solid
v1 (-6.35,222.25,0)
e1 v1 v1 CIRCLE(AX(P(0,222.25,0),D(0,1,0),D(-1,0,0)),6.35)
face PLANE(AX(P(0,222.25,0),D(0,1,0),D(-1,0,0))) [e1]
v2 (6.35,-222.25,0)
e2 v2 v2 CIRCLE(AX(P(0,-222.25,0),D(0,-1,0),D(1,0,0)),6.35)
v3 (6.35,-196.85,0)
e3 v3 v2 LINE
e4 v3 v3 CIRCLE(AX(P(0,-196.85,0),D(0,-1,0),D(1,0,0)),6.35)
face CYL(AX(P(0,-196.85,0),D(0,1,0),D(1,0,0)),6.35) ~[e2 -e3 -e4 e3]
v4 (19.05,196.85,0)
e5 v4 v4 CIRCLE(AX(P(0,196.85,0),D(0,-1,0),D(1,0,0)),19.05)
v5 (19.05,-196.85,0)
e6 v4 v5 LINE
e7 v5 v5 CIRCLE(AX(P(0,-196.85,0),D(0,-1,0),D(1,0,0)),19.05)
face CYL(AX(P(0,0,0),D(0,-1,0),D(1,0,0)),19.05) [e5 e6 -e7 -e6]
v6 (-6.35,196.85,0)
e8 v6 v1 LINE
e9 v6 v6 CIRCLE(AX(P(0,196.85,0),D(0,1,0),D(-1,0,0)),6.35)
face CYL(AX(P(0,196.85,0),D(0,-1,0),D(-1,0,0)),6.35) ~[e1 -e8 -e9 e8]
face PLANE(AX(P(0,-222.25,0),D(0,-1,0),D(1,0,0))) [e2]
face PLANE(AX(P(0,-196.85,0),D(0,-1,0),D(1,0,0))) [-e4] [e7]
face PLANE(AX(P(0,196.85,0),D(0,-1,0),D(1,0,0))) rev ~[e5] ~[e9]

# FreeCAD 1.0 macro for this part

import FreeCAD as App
import Part
import Sketcher

V = App.Vector
Q = App.Units.Quantity

doc = App.newDocument("Part")
params = doc.addObject("Spreadsheet::Sheet", "Params")
for row, (alias, value) in enumerate([
    ("sketch1_diameter", "1.5 in"),
    ("pad1_length", "15.5 in"),
    ("sketch2_diameter", "0.5 in"),
    ("pad2_length", "1 in"),
    ("sketch3_diameter", "0.5 in"),
    ("pad3_length", "1 in"),
], start=1):
    params.set(f"A{row}", alias)
    params.set(f"B{row}", "=" + value)
    params.setAlias(f"B{row}", alias)

body = doc.addObject("PartDesign::Body", "Body")

# Sketch on XZ plane
sketch1 = doc.addObject("Sketcher::SketchObject", "Sketch")
body.addObject(sketch1)
sketch1.AttachmentSupport = (doc.XZ_Plane, [""])
sketch1.MapMode = "FlatFace"
sketch1.addGeometry(Part.Circle(V(0, 0, 0), V(0, 0, 1), 19), False)
sketch1.addConstraint([
    Sketcher.Constraint("Coincident", 0, 3, -1, 1),
    Sketcher.Constraint("Diameter", 0, Q("1.5 in")),
])
sketch1.setExpression("Constraints[1]", "Params.sketch1_diameter")
pad1 = doc.addObject("PartDesign::Pad", "Pad")
body.addObject(pad1)
pad1.Profile = sketch1
pad1.setExpression("Length", "Params.pad1_length")
pad1.Midplane = True

# Sketch on XZ plane
sketch2 = doc.addObject("Sketcher::SketchObject", "Sketch001")
body.addObject(sketch2)
sketch2.AttachmentSupport = (doc.XZ_Plane, [""])
sketch2.MapMode = "FlatFace"
sketch2.AttachmentOffset = App.Placement(V(0, 0, -7.75 * 25.4), App.Rotation())
sketch2.addGeometry(Part.Circle(V(0, 0, 0), V(0, 0, 1), 6), False)
sketch2.addConstraint([
    Sketcher.Constraint("Coincident", 0, 3, -1, 1),
    Sketcher.Constraint("Diameter", 0, Q("0.5 in")),
])
sketch2.setExpression("Constraints[1]", "Params.sketch2_diameter")
pad2 = doc.addObject("PartDesign::Pad", "Pad001")
body.addObject(pad2)
pad2.Profile = sketch2
pad2.setExpression("Length", "Params.pad2_length")
pad2.Reversed = True

# Sketch on XZ plane
sketch3 = doc.addObject("Sketcher::SketchObject", "Sketch002")
body.addObject(sketch3)
sketch3.AttachmentSupport = (doc.XZ_Plane, [""])
sketch3.MapMode = "FlatFace"
sketch3.AttachmentOffset = App.Placement(V(0, 0, 7.75 * 25.4), App.Rotation())
sketch3.addGeometry(Part.Circle(V(0, 0, 0), V(0, 0, 1), 6), False)
sketch3.addConstraint([
    Sketcher.Constraint("Coincident", 0, 3, -1, 1),
    Sketcher.Constraint("Diameter", 0, Q("0.5 in")),
])
sketch3.setExpression("Constraints[1]", "Params.sketch3_diameter")
pad3 = doc.addObject("PartDesign::Pad", "Pad002")
body.addObject(pad3)
pad3.Profile = sketch3
pad3.setExpression("Length", "Params.pad3_length")

doc.recompute()
